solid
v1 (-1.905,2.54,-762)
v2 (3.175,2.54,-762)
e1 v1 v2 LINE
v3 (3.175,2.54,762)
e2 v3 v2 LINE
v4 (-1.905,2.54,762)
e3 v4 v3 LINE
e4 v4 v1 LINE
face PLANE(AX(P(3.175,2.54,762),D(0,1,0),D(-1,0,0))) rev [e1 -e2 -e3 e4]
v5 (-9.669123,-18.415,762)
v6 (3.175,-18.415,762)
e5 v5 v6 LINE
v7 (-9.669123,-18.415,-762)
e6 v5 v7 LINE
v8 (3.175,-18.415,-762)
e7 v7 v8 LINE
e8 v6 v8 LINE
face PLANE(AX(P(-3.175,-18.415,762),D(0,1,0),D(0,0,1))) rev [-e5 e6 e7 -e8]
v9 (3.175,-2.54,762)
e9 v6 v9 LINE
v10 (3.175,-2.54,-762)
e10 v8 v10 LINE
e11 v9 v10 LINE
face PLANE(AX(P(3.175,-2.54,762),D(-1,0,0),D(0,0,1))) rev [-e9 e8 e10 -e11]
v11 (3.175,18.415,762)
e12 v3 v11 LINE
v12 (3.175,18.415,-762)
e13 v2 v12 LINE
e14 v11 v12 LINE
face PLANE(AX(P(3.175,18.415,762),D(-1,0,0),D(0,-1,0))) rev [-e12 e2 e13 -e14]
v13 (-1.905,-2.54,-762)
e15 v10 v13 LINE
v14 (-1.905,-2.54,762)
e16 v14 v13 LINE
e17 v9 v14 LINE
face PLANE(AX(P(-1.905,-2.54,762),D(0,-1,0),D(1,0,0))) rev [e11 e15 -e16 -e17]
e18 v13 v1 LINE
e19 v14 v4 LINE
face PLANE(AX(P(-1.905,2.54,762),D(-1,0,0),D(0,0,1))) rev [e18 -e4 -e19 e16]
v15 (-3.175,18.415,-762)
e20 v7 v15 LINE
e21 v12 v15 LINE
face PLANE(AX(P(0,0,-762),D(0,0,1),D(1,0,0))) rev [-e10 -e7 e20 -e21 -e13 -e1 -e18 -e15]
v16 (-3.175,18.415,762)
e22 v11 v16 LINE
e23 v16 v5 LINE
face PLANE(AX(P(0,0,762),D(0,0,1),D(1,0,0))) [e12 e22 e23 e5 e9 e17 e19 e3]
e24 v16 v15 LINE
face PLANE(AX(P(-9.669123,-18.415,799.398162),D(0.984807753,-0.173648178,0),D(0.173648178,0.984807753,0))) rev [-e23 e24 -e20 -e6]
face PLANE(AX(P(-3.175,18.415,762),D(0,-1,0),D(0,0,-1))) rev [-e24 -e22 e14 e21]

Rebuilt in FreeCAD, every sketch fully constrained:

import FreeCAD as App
import Part
import Sketcher
Q = App.Units.Quantity


def add_polygon(sketch, points):
    """Adds a closed chain of lines whose ends are joined by coincident constraints."""
    first, n = sketch.GeometryCount, len(points)
    for a, b in zip(points, points[1:] + points[:1]):
        sketch.addGeometry(Part.LineSegment(App.Vector(*a, 0), App.Vector(*b, 0)), False)
    for i in range(n):
        sketch.addConstraint(Sketcher.Constraint("Coincident", first + i, 2, first + (i + 1) % n, 1))

doc = App.newDocument("Part")
body = doc.addObject("PartDesign::Body", "Body")

# Sketch on XY plane
sketch1 = body.newObject("Sketcher::SketchObject", "Sketch")
sketch1.AttachmentSupport = (doc.getObject("XY_Plane"), [""])
sketch1.MapMode = "FlatFace"
add_polygon(sketch1, [(-1.905, 2.54), (3.175, 2.54), (3.175, 18.415), (-3.175, 18.415), (-3.175, -18.415), (3.175, -18.415), (3.175, -2.54), (-1.905, -2.54)])  # lines 0-7
sketch1.addConstraint(Sketcher.Constraint("Horizontal", 0))
sketch1.addConstraint(Sketcher.Constraint("Vertical", 1))
sketch1.addConstraint(Sketcher.Constraint("Horizontal", 2))
sketch1.addConstraint(Sketcher.Constraint("Vertical", 3))
sketch1.addConstraint(Sketcher.Constraint("Horizontal", 4))
sketch1.addConstraint(Sketcher.Constraint("Vertical", 5))
sketch1.addConstraint(Sketcher.Constraint("Horizontal", 6))
sketch1.addConstraint(Sketcher.Constraint("Vertical", 7))
sketch1.addConstraint(Sketcher.Constraint("Symmetric", 1, 2, 3, 2, -1, 1))
sketch1.addConstraint(Sketcher.Constraint("Symmetric", 0, 2, 5, 2, -1))
sketch1.addConstraint(Sketcher.Constraint("Equal", 6, 7))
sketch1.addConstraint(Sketcher.Constraint("DistanceX", 0, 1, 0, 2, Q("0.2 in")))
sketch1.addConstraint(Sketcher.Constraint("DistanceX", 2, 2, 2, 1, Q("0.25 in")))
sketch1.addConstraint(Sketcher.Constraint("DistanceY", 3, 2, 3, 1, Q("1.45 in")))
pad1 = body.newObject("PartDesign::Pad", "Pad")
pad1.Profile = sketch1
pad1.Length = Q("60 in")
pad1.Midplane = True

# Sketch on XY plane
sketch2 = body.newObject("Sketcher::SketchObject", "Sketch001")
sketch2.AttachmentSupport = (doc.getObject("XY_Plane"), [""])
sketch2.MapMode = "FlatFace"
sketch2.AttachmentOffset = App.Placement(App.Vector(0, 0, -30 * 25.4), App.Rotation())
add_polygon(sketch2, [(-3.175, -18.415), (-3.175, 18.415), (-9.669123, -18.415)])  # lines 0-2
sketch2.addConstraint(Sketcher.Constraint("Vertical", 0))
sketch2.addConstraint(Sketcher.Constraint("Horizontal", 2))
sketch2.addConstraint(Sketcher.Constraint("Angle", 1, Q("-100 deg")))
sketch2.addConstraint(Sketcher.Constraint("DistanceY", 0, 1, 0, 2, Q("1.45 in")))
sketch2.addConstraint(Sketcher.Constraint("DistanceX", 0, 2, -1, 1, Q("0.125 in")))
sketch2.addConstraint(Sketcher.Constraint("DistanceY", -1, 1, 0, 2, Q("0.725 in")))
pad2 = body.newObject("PartDesign::Pad", "Pad001")
pad2.Profile = sketch2
pad2.Length = Q("60 in")

doc.recompute()
